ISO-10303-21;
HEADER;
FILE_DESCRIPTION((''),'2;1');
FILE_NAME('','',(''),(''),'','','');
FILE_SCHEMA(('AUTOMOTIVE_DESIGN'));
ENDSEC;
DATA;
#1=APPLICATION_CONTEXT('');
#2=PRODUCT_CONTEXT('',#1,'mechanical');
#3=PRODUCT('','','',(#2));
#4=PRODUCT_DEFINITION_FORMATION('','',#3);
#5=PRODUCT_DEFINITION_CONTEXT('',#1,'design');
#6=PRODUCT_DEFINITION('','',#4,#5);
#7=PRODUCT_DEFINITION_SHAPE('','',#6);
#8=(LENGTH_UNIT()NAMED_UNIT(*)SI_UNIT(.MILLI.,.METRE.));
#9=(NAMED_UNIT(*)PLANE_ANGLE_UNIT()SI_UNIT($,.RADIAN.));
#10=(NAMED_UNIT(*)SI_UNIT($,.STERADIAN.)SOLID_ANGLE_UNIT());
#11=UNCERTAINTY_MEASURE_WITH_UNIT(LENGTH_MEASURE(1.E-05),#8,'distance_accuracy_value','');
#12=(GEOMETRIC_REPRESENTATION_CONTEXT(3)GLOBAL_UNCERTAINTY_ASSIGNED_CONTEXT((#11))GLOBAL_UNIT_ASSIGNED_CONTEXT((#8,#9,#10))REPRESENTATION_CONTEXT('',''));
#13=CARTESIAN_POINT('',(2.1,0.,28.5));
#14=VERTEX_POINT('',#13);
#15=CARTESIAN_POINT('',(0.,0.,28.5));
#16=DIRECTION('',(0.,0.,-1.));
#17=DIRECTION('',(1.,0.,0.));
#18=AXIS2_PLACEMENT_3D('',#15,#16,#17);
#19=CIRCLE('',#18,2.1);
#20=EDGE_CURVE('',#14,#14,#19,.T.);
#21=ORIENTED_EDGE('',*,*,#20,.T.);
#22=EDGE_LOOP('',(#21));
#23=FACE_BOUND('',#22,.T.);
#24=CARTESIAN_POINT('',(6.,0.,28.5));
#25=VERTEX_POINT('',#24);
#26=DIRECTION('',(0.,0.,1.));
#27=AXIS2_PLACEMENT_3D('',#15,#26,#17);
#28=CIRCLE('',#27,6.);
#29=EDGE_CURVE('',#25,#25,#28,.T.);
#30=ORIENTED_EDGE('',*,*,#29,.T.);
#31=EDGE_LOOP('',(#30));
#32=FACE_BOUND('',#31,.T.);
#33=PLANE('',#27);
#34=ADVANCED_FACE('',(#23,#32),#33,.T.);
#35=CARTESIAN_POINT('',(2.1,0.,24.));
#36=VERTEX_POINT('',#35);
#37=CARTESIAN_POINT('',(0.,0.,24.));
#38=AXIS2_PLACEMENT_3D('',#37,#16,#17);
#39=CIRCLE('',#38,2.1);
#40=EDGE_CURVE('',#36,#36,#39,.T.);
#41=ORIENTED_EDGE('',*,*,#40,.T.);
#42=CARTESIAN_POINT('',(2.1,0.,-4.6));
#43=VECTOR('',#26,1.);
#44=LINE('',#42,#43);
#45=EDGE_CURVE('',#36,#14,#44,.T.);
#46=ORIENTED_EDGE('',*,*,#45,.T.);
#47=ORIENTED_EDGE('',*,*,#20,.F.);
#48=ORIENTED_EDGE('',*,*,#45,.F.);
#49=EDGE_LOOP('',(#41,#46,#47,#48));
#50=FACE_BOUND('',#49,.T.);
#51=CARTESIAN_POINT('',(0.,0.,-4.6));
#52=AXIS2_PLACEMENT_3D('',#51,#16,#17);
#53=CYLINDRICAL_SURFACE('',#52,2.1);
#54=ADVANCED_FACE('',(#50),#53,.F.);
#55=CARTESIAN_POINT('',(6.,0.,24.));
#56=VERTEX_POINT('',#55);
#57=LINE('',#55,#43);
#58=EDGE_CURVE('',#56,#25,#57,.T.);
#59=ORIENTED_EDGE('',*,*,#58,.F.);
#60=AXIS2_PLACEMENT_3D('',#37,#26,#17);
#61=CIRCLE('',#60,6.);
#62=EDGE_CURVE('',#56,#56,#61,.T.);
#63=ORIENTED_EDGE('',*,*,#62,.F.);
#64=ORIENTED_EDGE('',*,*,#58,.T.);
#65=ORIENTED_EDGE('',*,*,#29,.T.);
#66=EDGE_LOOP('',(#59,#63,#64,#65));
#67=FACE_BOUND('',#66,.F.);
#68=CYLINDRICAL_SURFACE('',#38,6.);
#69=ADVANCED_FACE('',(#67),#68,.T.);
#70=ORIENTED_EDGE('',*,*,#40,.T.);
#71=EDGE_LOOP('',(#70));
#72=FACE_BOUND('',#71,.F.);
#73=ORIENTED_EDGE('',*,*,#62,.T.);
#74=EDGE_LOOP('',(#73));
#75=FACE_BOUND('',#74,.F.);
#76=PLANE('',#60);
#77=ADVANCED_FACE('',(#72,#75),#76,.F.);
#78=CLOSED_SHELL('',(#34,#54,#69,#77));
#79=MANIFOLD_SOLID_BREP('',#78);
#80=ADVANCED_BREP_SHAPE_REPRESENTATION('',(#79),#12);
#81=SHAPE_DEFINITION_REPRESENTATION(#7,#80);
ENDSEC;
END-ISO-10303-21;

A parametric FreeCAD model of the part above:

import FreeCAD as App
import Part
import Sketcher

V = App.Vector

doc = App.newDocument("Part")
params = doc.addObject("Spreadsheet::Sheet", "Params")
for row, (alias, value) in enumerate([
    ("sketch1_diameter", "4.2 mm"),
    ("pad1_length", "33.5 mm"),
    ("sketch2_diameter", "12 mm"),
    ("pad2_length", "4.5 mm"),
], start=1):
    params.set(f"A{row}", alias)
    params.set(f"B{row}", "=" + value)
    params.setAlias(f"B{row}", alias)

body = doc.addObject("PartDesign::Body", "Body")

sketch1 = body.newObject("Sketcher::SketchObject", "Sketch")
sketch1.AttachmentSupport = (doc.getObject("XY_Plane"), [""])
sketch1.MapMode = "FlatFace"
sketch1.AttachmentOffset = App.Placement(V(0, 0, -4.6), App.Rotation())
sketch1.addGeometry(Part.Circle(V(0, 0, 0), V(0, 0, 1), 2.1), False)
sketch1.addConstraint(Sketcher.Constraint("Coincident", 0, 3, -1, 1))
sketch1.addConstraint(Sketcher.Constraint("Diameter", 0, 4.2))
sketch1.setExpression("Constraints[1]", "Params.sketch1_diameter")
pad1 = body.newObject("PartDesign::Pad", "Pad")
pad1.Profile = sketch1
pad1.setExpression("Length", "Params.pad1_length")
body2 = doc.addObject("PartDesign::Body", "Body001")

sketch2 = body2.newObject("Sketcher::SketchObject", "Sketch001")
sketch2.AttachmentSupport = (doc.getObject("XY_Plane001"), [""])
sketch2.MapMode = "FlatFace"
sketch2.AttachmentOffset = App.Placement(V(0, 0, 24), App.Rotation())
sketch2.addGeometry(Part.Circle(V(0, 0, 0), V(0, 0, 1), 6), False)
sketch2.addConstraint(Sketcher.Constraint("Coincident", 0, 3, -1, 1))
sketch2.addConstraint(Sketcher.Constraint("Diameter", 0, 12.0))
sketch2.setExpression("Constraints[1]", "Params.sketch2_diameter")
pad2 = body2.newObject("PartDesign::Pad", "Pad001")
pad2.Profile = sketch2
pad2.setExpression("Length", "Params.pad2_length")
doc.recompute()

boolean = body2.newObject("PartDesign::Boolean", "Boolean")
boolean.Type = "Cut"
boolean.addObjects([body])

doc.recompute()
